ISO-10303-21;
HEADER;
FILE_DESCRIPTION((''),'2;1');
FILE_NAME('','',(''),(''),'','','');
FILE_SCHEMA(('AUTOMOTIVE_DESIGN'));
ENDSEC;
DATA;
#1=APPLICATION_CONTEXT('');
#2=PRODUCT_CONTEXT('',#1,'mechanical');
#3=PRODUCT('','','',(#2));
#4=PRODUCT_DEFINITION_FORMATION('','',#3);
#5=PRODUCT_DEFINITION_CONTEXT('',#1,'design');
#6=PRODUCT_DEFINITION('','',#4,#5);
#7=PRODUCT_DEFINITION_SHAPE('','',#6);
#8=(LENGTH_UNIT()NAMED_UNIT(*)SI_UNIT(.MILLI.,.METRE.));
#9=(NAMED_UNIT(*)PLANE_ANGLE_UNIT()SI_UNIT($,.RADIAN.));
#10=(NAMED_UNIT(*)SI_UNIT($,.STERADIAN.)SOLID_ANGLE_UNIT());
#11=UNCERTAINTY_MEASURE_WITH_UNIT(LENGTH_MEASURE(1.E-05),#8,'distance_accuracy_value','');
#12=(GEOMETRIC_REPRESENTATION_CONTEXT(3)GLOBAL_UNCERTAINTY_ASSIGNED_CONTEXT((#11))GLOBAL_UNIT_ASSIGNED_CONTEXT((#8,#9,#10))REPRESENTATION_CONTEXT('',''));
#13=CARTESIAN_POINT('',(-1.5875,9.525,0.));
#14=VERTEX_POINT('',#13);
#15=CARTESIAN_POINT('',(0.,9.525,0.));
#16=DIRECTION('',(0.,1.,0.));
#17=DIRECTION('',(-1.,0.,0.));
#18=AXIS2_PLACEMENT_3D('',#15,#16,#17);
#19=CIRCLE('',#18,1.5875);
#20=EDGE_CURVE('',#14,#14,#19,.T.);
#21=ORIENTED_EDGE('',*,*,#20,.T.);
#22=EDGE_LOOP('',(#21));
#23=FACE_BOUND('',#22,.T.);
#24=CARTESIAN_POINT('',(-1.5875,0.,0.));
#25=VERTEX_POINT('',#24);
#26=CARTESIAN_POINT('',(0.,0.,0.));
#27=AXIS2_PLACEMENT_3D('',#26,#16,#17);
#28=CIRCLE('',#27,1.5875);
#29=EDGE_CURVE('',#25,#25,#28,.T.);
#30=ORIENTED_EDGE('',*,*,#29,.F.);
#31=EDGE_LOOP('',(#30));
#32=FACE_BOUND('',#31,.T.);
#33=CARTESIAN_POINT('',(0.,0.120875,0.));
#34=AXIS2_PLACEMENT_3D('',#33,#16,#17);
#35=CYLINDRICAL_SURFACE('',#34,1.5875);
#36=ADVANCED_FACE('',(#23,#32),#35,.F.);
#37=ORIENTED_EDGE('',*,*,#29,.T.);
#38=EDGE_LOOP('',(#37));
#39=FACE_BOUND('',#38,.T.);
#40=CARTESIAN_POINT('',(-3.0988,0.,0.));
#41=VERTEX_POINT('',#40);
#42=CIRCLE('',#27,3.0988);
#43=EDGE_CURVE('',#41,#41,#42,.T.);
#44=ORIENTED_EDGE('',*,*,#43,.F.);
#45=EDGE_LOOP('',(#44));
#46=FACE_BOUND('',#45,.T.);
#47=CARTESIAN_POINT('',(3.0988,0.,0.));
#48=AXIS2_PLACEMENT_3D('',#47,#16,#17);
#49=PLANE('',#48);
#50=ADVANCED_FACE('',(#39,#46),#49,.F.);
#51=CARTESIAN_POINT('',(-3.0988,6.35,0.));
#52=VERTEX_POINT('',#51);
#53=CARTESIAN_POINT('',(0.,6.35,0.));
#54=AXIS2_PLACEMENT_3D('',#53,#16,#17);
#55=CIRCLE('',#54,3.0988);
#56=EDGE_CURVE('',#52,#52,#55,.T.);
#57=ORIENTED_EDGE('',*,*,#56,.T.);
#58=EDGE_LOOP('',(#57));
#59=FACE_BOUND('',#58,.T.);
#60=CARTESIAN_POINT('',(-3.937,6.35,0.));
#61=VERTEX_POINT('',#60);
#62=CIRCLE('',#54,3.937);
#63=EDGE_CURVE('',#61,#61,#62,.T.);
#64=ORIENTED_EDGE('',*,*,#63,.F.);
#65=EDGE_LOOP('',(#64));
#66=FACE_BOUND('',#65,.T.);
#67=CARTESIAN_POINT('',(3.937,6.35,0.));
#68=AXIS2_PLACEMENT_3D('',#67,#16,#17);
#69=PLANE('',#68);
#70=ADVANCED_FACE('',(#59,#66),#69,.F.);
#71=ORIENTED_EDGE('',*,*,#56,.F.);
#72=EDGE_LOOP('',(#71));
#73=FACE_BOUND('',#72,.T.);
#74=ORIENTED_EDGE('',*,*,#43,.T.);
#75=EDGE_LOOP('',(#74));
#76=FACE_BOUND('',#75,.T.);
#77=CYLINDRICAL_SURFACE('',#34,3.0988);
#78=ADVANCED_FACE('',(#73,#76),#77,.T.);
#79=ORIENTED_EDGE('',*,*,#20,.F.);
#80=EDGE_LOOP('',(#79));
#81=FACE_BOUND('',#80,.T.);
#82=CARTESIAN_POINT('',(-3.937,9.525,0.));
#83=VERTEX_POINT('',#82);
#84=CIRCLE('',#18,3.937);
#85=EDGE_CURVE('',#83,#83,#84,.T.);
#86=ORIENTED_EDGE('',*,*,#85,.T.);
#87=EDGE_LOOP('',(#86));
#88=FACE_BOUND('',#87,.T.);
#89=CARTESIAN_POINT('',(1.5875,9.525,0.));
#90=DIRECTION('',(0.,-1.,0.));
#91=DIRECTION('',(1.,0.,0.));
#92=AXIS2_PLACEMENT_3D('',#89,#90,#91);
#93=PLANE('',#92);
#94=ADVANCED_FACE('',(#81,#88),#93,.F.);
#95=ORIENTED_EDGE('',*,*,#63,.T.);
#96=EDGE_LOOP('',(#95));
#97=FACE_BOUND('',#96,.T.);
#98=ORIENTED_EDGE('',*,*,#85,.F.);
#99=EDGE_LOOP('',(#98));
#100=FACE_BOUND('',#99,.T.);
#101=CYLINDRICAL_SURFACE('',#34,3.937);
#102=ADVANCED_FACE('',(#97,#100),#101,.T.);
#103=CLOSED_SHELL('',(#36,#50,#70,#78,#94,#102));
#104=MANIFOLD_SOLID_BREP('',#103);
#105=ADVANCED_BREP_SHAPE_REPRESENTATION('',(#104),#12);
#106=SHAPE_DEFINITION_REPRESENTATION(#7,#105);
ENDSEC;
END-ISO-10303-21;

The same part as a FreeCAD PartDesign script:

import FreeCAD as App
import Part
import Sketcher
from FreeCAD import Vector
Q = App.Units.Quantity


def add_polygon(sketch, points):
    """Adds a closed chain of lines whose ends are joined by coincident constraints."""
    first, n = sketch.GeometryCount, len(points)
    for a, b in zip(points, points[1:] + points[:1]):
        sketch.addGeometry(Part.LineSegment(App.Vector(*a, 0), App.Vector(*b, 0)), False)
    for i in range(n):
        sketch.addConstraint(Sketcher.Constraint("Coincident", first + i, 2, first + (i + 1) % n, 1))

doc = App.newDocument("Part")
body = doc.addObject("PartDesign::Body", "Body")

# Sketch on XY plane
sketch1 = body.newObject("Sketcher::SketchObject", "Sketch")
sketch1.AttachmentSupport = (doc.getObject("XY_Plane"), [""])
sketch1.MapMode = "FlatFace"
add_polygon(sketch1, [(1.6, 9.5), (1.6, 0), (3.1, 0), (3.1, 6.3), (3.9, 6.3), (3.9, 9.5)])  # lines 0-5
sketch1.addConstraint(Sketcher.Constraint("Vertical", 0))
sketch1.addConstraint(Sketcher.Constraint("Horizontal", 1))
sketch1.addConstraint(Sketcher.Constraint("Vertical", 2))
sketch1.addConstraint(Sketcher.Constraint("Horizontal", 3))
sketch1.addConstraint(Sketcher.Constraint("Vertical", 4))
sketch1.addConstraint(Sketcher.Constraint("Horizontal", 5))
sketch1.addConstraint(Sketcher.Constraint("PointOnObject", 0, 2, -1))
sketch1.addConstraint(Sketcher.Constraint("DistanceY", 2, 1, 2, 2, Q("0.25 in")))
sketch1.addConstraint(Sketcher.Constraint("DistanceX", 3, 1, 3, 2, Q("0.033 in")))
sketch1.addConstraint(Sketcher.Constraint("DistanceY", 0, 2, 0, 1, Q("0.375 in")))
sketch1.addConstraint(Sketcher.Constraint("DistanceX", 1, 1, 1, 2, Q("0.0595 in")))
sketch1.addConstraint(Sketcher.Constraint("DistanceX", -1, 1, 0, 2, Q("0.0625 in")))
revolution = body.newObject("PartDesign::Revolution", "Revolution")
revolution.Profile = sketch1
revolution.ReferenceAxis = (sketch1, ["V_Axis"])
revolution.Angle = 360

doc.recompute()
